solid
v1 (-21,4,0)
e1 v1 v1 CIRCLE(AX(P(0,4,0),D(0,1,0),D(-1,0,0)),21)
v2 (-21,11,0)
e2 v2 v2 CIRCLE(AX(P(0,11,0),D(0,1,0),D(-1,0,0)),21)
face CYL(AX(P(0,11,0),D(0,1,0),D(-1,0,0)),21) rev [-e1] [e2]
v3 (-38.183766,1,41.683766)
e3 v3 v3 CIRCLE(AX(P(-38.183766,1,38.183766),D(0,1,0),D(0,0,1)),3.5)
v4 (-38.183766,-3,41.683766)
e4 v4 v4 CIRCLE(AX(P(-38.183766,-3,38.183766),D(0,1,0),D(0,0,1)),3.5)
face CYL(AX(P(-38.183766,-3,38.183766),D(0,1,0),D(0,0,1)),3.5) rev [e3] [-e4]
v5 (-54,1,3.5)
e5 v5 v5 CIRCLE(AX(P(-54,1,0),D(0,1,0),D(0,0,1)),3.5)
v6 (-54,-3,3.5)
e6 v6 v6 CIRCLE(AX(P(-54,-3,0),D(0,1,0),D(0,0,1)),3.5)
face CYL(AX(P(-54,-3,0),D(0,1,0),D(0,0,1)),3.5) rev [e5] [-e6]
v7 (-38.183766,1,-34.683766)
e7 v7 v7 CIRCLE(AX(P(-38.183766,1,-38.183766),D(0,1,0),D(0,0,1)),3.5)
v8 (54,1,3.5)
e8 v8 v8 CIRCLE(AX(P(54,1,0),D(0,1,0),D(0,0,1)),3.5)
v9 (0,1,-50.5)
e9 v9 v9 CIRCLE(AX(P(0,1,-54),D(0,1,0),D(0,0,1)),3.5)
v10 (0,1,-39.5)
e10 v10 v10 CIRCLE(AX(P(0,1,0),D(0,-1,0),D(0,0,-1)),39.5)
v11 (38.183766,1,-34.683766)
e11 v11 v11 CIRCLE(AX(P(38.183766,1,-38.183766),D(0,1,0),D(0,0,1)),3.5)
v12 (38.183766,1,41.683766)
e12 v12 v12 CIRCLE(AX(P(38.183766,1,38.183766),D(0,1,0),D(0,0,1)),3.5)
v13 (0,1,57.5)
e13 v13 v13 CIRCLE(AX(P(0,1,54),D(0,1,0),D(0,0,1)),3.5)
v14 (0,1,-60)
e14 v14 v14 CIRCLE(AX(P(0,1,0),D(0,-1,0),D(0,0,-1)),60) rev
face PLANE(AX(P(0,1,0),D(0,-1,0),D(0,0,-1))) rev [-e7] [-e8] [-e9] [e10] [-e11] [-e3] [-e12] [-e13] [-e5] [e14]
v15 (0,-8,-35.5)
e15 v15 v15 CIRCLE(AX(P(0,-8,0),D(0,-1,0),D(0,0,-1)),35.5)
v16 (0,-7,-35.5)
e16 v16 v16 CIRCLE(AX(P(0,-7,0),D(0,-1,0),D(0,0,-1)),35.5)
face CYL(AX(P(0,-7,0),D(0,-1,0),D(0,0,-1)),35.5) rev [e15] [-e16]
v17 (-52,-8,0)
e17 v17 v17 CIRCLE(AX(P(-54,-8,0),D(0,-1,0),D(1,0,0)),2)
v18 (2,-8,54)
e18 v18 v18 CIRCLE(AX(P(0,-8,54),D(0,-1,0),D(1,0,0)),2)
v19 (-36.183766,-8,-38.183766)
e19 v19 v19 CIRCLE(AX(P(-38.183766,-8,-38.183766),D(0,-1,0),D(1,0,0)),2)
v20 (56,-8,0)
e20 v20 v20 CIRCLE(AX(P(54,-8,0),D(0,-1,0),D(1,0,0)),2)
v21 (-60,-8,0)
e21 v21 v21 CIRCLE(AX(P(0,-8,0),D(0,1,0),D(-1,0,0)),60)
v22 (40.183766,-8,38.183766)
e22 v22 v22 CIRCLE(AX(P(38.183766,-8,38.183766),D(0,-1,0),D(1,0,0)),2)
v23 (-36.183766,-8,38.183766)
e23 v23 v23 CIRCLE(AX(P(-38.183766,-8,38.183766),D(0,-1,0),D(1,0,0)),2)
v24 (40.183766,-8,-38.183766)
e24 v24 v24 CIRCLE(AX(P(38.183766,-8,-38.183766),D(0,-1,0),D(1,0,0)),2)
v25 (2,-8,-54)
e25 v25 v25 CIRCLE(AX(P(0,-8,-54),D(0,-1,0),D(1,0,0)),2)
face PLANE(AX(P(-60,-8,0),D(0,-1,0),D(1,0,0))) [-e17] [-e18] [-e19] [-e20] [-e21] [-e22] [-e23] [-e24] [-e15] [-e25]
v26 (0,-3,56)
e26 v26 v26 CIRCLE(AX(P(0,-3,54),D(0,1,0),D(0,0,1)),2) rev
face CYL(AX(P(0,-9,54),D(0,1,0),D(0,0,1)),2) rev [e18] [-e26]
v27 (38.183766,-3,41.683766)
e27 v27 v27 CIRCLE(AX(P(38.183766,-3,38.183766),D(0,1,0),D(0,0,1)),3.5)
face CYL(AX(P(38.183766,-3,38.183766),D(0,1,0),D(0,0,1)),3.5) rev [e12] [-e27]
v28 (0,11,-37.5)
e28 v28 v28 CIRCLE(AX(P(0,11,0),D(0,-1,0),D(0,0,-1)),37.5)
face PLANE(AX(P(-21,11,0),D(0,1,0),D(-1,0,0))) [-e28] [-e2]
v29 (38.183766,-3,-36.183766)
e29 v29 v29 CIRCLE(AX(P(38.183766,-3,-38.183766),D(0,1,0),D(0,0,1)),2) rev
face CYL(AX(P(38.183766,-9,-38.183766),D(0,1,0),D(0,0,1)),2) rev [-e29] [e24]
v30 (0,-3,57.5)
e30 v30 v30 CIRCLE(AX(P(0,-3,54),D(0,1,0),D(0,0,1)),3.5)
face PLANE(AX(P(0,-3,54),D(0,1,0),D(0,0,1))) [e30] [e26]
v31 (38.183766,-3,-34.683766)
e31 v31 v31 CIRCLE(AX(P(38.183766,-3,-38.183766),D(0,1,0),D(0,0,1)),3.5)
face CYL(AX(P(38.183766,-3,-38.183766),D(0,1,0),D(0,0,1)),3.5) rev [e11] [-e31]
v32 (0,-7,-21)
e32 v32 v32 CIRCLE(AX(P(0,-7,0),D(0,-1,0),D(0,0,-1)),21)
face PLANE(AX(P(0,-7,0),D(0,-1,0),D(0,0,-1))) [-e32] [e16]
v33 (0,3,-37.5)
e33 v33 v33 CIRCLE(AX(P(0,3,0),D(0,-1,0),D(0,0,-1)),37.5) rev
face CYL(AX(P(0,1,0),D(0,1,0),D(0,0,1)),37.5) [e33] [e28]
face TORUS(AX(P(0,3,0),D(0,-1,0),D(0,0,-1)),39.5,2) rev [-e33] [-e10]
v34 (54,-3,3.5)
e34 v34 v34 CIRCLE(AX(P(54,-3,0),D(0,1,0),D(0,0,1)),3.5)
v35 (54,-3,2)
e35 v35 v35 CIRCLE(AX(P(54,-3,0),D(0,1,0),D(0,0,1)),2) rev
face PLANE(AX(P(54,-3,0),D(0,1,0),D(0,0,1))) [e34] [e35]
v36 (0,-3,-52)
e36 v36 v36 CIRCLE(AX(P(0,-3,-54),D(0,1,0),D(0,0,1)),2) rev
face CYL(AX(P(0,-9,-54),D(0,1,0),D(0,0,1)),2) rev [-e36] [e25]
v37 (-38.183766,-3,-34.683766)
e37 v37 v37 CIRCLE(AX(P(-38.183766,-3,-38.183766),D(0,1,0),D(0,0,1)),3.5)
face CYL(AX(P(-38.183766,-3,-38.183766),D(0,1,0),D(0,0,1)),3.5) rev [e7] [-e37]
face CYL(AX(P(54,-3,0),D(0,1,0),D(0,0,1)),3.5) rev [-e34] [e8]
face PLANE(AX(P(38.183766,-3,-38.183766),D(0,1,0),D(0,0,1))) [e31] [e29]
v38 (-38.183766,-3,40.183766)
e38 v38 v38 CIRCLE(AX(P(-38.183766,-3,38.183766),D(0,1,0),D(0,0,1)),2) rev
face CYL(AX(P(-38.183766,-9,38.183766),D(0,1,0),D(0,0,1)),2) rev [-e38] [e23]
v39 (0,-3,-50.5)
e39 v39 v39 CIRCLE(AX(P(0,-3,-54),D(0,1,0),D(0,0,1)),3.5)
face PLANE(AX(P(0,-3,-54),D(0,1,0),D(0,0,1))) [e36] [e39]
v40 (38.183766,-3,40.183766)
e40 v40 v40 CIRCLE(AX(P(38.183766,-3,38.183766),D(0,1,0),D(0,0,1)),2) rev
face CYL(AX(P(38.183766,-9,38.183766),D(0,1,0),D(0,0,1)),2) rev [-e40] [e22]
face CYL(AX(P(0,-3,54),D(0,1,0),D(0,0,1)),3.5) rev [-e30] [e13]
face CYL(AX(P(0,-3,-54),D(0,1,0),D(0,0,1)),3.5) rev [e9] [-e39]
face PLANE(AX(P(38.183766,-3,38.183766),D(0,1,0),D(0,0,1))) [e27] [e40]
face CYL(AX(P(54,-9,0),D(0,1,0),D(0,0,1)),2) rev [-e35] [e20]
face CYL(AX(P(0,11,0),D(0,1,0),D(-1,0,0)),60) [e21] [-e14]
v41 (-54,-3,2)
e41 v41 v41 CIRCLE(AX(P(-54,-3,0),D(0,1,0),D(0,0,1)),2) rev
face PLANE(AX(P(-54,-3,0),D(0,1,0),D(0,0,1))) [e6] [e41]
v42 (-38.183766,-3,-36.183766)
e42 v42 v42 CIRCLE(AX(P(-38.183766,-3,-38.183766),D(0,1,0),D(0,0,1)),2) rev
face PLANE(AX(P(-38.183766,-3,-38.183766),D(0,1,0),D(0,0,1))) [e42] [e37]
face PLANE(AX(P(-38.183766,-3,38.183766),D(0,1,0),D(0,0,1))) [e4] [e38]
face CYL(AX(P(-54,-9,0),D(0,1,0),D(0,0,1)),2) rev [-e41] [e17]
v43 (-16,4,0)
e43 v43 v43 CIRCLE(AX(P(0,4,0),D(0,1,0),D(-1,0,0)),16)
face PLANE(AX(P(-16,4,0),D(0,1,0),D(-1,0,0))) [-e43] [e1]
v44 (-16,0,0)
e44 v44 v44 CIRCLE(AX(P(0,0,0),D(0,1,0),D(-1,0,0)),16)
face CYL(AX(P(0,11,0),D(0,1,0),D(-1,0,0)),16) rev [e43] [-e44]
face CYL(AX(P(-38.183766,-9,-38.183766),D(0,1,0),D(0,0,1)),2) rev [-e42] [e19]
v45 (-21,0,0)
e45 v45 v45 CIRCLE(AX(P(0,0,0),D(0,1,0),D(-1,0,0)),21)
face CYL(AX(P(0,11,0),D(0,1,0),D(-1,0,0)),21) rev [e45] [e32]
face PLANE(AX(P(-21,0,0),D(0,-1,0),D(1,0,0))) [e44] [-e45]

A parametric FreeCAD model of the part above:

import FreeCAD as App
import Part
import Sketcher
from FreeCAD import Vector
Q = App.Units.Quantity


def edges_at(feature, points):
    """Names of the edges that pass closest to the given points."""
    edges = feature.Shape.Edges
    near = lambda p: min(range(len(edges)), key=lambda i: edges[i].distToShape(Part.Vertex(*p))[0])
    return sorted({f"Edge{near(p) + 1}" for p in points})


def add_polygon(sketch, points):
    """Adds a closed chain of lines whose ends are joined by coincident constraints."""
    first, n = sketch.GeometryCount, len(points)
    for a, b in zip(points, points[1:] + points[:1]):
        sketch.addGeometry(Part.LineSegment(App.Vector(*a, 0), App.Vector(*b, 0)), False)
    for i in range(n):
        sketch.addConstraint(Sketcher.Constraint("Coincident", first + i, 2, first + (i + 1) % n, 1))

doc = App.newDocument("Part")
body = doc.addObject("PartDesign::Body", "Body")

# Sketch on XY plane
sketch1 = doc.addObject("Sketcher::SketchObject", "Sketch")
body.addObject(sketch1)
sketch1.AttachmentSupport = (doc.XY_Plane, [""])
sketch1.MapMode = "FlatFace"
add_polygon(sketch1, [(-21, 11), (-60, 11), (-60, -8), (-21, -8), (-21, 0), (-16, 0), (-16, 4), (-21, 4)])  # lines 0-7
sketch1.addConstraint(Sketcher.Constraint("Horizontal", 0))
sketch1.addConstraint(Sketcher.Constraint("Vertical", 1))
sketch1.addConstraint(Sketcher.Constraint("Horizontal", 2))
sketch1.addConstraint(Sketcher.Constraint("Vertical", 3))
sketch1.addConstraint(Sketcher.Constraint("Horizontal", 4))
sketch1.addConstraint(Sketcher.Constraint("Vertical", 5))
sketch1.addConstraint(Sketcher.Constraint("Horizontal", 6))
sketch1.addConstraint(Sketcher.Constraint("Vertical", 7))
sketch1.addConstraint(Sketcher.Constraint("PointOnObject", 3, 2, -1))
sketch1.addConstraint(Sketcher.Constraint("Vertical", 3, 2, 6, 2))
sketch1.addConstraint(Sketcher.Constraint("DistanceX", 0, 2, 0, 1, Q("39 mm")))
sketch1.addConstraint(Sketcher.Constraint("DistanceX", 4, 1, 4, 2, Q("5 mm")))
sketch1.addConstraint(Sketcher.Constraint("DistanceY", 1, 2, 1, 1, Q("19 mm")))
sketch1.addConstraint(Sketcher.Constraint("DistanceY", 3, 1, 3, 2, Q("8 mm")))
sketch1.addConstraint(Sketcher.Constraint("DistanceY", 5, 1, 5, 2, Q("4 mm")))
sketch1.addConstraint(Sketcher.Constraint("DistanceX", 0, 2, -1, 1, Q("60 mm")))
revolution = doc.addObject("PartDesign::Revolution", "Revolution")
body.addObject(revolution)
revolution.Profile = sketch1
revolution.ReferenceAxis = (sketch1, ["V_Axis"])
revolution.Angle = 360

# Sketch on XZ plane
sketch2 = doc.addObject("Sketcher::SketchObject", "Sketch001")
body.addObject(sketch2)
sketch2.AttachmentSupport = (doc.XZ_Plane, [""])
sketch2.MapMode = "FlatFace"
sketch2.AttachmentOffset = App.Placement(Vector(0, 0, -11), App.Rotation())
sketch2.addGeometry(Part.Circle(Vector(0, 0, 0), Vector(0, 0, 1), 68), False)
sketch2.addGeometry(Part.Circle(Vector(0, 0, 0), Vector(0, 0, 1), 38), False)
sketch2.addConstraint(Sketcher.Constraint("Coincident", 0, 3, -1, 1))
sketch2.addConstraint(Sketcher.Constraint("Coincident", 1, 3, -1, 1))
sketch2.addConstraint(Sketcher.Constraint("Diameter", 1, Q("75 mm")))
sketch2.addConstraint(Sketcher.Constraint("Diameter", 0, Q("135.929072 mm")))
pocket1 = doc.addObject("PartDesign::Pocket", "Pocket")
body.addObject(pocket1)
pocket1.Profile = sketch2
pocket1.Length = 10
pocket1.Reversed = True

# Sketch on XZ plane
sketch3 = doc.addObject("Sketcher::SketchObject", "Sketch002")
body.addObject(sketch3)
sketch3.AttachmentSupport = (doc.XZ_Plane, [""])
sketch3.MapMode = "FlatFace"
sketch3.AttachmentOffset = App.Placement(Vector(0, 0, 8), App.Rotation())
sketch3.addGeometry(Part.Circle(Vector(0, 0, 0), Vector(0, 0, 1), 36), False)
sketch3.addConstraint(Sketcher.Constraint("Coincident", 0, 3, -1, 1))
sketch3.addConstraint(Sketcher.Constraint("Diameter", 0, Q("71 mm")))
pocket2 = doc.addObject("PartDesign::Pocket", "Pocket001")
body.addObject(pocket2)
pocket2.Profile = sketch3
pocket2.Length = 1

# Sketch on XZ plane
sketch4 = doc.addObject("Sketcher::SketchObject", "Sketch003")
body.addObject(sketch4)
sketch4.AttachmentSupport = (doc.XZ_Plane, [""])
sketch4.MapMode = "FlatFace"
sketch4.AttachmentOffset = App.Placement(Vector(0, 0, -1), App.Rotation())
sketch4.addGeometry(Part.Circle(Vector(0, -54, 0), Vector(0, 0, 1), 2), False)
sketch4.addGeometry(Part.Circle(Vector(38.2, -38.2, 0), Vector(0, 0, 1), 2), False)
sketch4.addGeometry(Part.Circle(Vector(54, 0, 0), Vector(0, 0, 1), 2), False)
sketch4.addGeometry(Part.Circle(Vector(38.2, 38.2, 0), Vector(0, 0, 1), 2), False)
sketch4.addGeometry(Part.Circle(Vector(0, 54, 0), Vector(0, 0, 1), 2), False)
sketch4.addGeometry(Part.Circle(Vector(-38.2, 38.2, 0), Vector(0, 0, 1), 2), False)
sketch4.addGeometry(Part.Circle(Vector(-54, 0, 0), Vector(0, 0, 1), 2), False)
sketch4.addGeometry(Part.Circle(Vector(-38.2, -38.2, 0), Vector(0, 0, 1), 2), False)
sketch4.addConstraint(Sketcher.Constraint("Equal", 0, 1))
sketch4.addConstraint(Sketcher.Constraint("Equal", 1, 2))
sketch4.addConstraint(Sketcher.Constraint("Equal", 2, 3))
sketch4.addConstraint(Sketcher.Constraint("Equal", 3, 4))
sketch4.addConstraint(Sketcher.Constraint("Equal", 4, 5))
sketch4.addConstraint(Sketcher.Constraint("Equal", 5, 6))
sketch4.addConstraint(Sketcher.Constraint("Equal", 6, 7))
sketch4.addConstraint(Sketcher.Constraint("Symmetric", 0, 3, 4, 3, -1, 1))
sketch4.addConstraint(Sketcher.Constraint("Symmetric", 1, 3, 5, 3, -1, 1))
sketch4.addConstraint(Sketcher.Constraint("Symmetric", 2, 3, 6, 3, -1, 1))
sketch4.addConstraint(Sketcher.Constraint("Symmetric", 3, 3, 7, 3, -1, 1))
sketch4.addConstraint(Sketcher.Constraint("Symmetric", 3, 3, 5, 3, -2))
sketch4.addConstraint(Sketcher.Constraint("PointOnObject", 0, 3, -2))
sketch4.addConstraint(Sketcher.Constraint("PointOnObject", 2, 3, -1))
sketch4.addConstraint(Sketcher.Constraint("Diameter", 0, Q("4 mm")))
sketch4.addConstraint(Sketcher.Constraint("DistanceY", 0, 3, -1, 1, Q("54 mm")))
sketch4.addConstraint(Sketcher.Constraint("DistanceX", -1, 1, 2, 3, Q("54 mm")))
sketch4.addConstraint(Sketcher.Constraint("DistanceX", -1, 1, 1, 3, Q("38.183766 mm")))
sketch4.addConstraint(Sketcher.Constraint("DistanceY", 1, 3, -1, 1, Q("38.183766 mm")))
pocket3 = doc.addObject("PartDesign::Pocket", "Pocket002")
body.addObject(pocket3)
pocket3.Profile = sketch4
pocket3.Length = 10
pocket3.Reversed = True

# Sketch on XZ plane
sketch5 = doc.addObject("Sketcher::SketchObject", "Sketch004")
body.addObject(sketch5)
sketch5.AttachmentSupport = (doc.XZ_Plane, [""])
sketch5.MapMode = "FlatFace"
sketch5.AttachmentOffset = App.Placement(Vector(0, 0, -1), App.Rotation())
sketch5.addGeometry(Part.Circle(Vector(0, -54, 0), Vector(0, 0, 1), 3.5), False)
sketch5.addGeometry(Part.Circle(Vector(38.2, -38.2, 0), Vector(0, 0, 1), 3.5), False)
sketch5.addGeometry(Part.Circle(Vector(54, 0, 0), Vector(0, 0, 1), 3.5), False)
sketch5.addGeometry(Part.Circle(Vector(38.2, 38.2, 0), Vector(0, 0, 1), 3.5), False)
sketch5.addGeometry(Part.Circle(Vector(0, 54, 0), Vector(0, 0, 1), 3.5), False)
sketch5.addGeometry(Part.Circle(Vector(-38.2, 38.2, 0), Vector(0, 0, 1), 3.5), False)
sketch5.addGeometry(Part.Circle(Vector(-54, 0, 0), Vector(0, 0, 1), 3.5), False)
sketch5.addGeometry(Part.Circle(Vector(-38.2, -38.2, 0), Vector(0, 0, 1), 3.5), False)
sketch5.addConstraint(Sketcher.Constraint("Equal", 0, 1))
sketch5.addConstraint(Sketcher.Constraint("Equal", 1, 2))
sketch5.addConstraint(Sketcher.Constraint("Equal", 2, 3))
sketch5.addConstraint(Sketcher.Constraint("Equal", 3, 4))
sketch5.addConstraint(Sketcher.Constraint("Equal", 4, 5))
sketch5.addConstraint(Sketcher.Constraint("Equal", 5, 6))
sketch5.addConstraint(Sketcher.Constraint("Equal", 6, 7))
sketch5.addConstraint(Sketcher.Constraint("Symmetric", 0, 3, 4, 3, -1, 1))
sketch5.addConstraint(Sketcher.Constraint("Symmetric", 1, 3, 5, 3, -1, 1))
sketch5.addConstraint(Sketcher.Constraint("Symmetric", 2, 3, 6, 3, -1, 1))
sketch5.addConstraint(Sketcher.Constraint("Symmetric", 3, 3, 7, 3, -1, 1))
sketch5.addConstraint(Sketcher.Constraint("Symmetric", 3, 3, 5, 3, -2))
sketch5.addConstraint(Sketcher.Constraint("PointOnObject", 0, 3, -2))
sketch5.addConstraint(Sketcher.Constraint("PointOnObject", 2, 3, -1))
sketch5.addConstraint(Sketcher.Constraint("Diameter", 0, Q("7 mm")))
sketch5.addConstraint(Sketcher.Constraint("DistanceY", 0, 3, -1, 1, Q("54 mm")))
sketch5.addConstraint(Sketcher.Constraint("DistanceX", -1, 1, 2, 3, Q("54 mm")))
sketch5.addConstraint(Sketcher.Constraint("DistanceX", -1, 1, 1, 3, Q("38.183766 mm")))
sketch5.addConstraint(Sketcher.Constraint("DistanceY", 1, 3, -1, 1, Q("38.183766 mm")))
pocket4 = doc.addObject("PartDesign::Pocket", "Pocket003")
body.addObject(pocket4)
pocket4.Profile = sketch5
pocket4.Length = 4
pocket4.Reversed = True
doc.recompute()

fillet = doc.addObject("PartDesign::Fillet", "Fillet")
body.addObject(fillet)
fillet.Base = (pocket4, edges_at(pocket4, [(0, 1, 37.5)]))
fillet.Radius = 2

doc.recompute()
